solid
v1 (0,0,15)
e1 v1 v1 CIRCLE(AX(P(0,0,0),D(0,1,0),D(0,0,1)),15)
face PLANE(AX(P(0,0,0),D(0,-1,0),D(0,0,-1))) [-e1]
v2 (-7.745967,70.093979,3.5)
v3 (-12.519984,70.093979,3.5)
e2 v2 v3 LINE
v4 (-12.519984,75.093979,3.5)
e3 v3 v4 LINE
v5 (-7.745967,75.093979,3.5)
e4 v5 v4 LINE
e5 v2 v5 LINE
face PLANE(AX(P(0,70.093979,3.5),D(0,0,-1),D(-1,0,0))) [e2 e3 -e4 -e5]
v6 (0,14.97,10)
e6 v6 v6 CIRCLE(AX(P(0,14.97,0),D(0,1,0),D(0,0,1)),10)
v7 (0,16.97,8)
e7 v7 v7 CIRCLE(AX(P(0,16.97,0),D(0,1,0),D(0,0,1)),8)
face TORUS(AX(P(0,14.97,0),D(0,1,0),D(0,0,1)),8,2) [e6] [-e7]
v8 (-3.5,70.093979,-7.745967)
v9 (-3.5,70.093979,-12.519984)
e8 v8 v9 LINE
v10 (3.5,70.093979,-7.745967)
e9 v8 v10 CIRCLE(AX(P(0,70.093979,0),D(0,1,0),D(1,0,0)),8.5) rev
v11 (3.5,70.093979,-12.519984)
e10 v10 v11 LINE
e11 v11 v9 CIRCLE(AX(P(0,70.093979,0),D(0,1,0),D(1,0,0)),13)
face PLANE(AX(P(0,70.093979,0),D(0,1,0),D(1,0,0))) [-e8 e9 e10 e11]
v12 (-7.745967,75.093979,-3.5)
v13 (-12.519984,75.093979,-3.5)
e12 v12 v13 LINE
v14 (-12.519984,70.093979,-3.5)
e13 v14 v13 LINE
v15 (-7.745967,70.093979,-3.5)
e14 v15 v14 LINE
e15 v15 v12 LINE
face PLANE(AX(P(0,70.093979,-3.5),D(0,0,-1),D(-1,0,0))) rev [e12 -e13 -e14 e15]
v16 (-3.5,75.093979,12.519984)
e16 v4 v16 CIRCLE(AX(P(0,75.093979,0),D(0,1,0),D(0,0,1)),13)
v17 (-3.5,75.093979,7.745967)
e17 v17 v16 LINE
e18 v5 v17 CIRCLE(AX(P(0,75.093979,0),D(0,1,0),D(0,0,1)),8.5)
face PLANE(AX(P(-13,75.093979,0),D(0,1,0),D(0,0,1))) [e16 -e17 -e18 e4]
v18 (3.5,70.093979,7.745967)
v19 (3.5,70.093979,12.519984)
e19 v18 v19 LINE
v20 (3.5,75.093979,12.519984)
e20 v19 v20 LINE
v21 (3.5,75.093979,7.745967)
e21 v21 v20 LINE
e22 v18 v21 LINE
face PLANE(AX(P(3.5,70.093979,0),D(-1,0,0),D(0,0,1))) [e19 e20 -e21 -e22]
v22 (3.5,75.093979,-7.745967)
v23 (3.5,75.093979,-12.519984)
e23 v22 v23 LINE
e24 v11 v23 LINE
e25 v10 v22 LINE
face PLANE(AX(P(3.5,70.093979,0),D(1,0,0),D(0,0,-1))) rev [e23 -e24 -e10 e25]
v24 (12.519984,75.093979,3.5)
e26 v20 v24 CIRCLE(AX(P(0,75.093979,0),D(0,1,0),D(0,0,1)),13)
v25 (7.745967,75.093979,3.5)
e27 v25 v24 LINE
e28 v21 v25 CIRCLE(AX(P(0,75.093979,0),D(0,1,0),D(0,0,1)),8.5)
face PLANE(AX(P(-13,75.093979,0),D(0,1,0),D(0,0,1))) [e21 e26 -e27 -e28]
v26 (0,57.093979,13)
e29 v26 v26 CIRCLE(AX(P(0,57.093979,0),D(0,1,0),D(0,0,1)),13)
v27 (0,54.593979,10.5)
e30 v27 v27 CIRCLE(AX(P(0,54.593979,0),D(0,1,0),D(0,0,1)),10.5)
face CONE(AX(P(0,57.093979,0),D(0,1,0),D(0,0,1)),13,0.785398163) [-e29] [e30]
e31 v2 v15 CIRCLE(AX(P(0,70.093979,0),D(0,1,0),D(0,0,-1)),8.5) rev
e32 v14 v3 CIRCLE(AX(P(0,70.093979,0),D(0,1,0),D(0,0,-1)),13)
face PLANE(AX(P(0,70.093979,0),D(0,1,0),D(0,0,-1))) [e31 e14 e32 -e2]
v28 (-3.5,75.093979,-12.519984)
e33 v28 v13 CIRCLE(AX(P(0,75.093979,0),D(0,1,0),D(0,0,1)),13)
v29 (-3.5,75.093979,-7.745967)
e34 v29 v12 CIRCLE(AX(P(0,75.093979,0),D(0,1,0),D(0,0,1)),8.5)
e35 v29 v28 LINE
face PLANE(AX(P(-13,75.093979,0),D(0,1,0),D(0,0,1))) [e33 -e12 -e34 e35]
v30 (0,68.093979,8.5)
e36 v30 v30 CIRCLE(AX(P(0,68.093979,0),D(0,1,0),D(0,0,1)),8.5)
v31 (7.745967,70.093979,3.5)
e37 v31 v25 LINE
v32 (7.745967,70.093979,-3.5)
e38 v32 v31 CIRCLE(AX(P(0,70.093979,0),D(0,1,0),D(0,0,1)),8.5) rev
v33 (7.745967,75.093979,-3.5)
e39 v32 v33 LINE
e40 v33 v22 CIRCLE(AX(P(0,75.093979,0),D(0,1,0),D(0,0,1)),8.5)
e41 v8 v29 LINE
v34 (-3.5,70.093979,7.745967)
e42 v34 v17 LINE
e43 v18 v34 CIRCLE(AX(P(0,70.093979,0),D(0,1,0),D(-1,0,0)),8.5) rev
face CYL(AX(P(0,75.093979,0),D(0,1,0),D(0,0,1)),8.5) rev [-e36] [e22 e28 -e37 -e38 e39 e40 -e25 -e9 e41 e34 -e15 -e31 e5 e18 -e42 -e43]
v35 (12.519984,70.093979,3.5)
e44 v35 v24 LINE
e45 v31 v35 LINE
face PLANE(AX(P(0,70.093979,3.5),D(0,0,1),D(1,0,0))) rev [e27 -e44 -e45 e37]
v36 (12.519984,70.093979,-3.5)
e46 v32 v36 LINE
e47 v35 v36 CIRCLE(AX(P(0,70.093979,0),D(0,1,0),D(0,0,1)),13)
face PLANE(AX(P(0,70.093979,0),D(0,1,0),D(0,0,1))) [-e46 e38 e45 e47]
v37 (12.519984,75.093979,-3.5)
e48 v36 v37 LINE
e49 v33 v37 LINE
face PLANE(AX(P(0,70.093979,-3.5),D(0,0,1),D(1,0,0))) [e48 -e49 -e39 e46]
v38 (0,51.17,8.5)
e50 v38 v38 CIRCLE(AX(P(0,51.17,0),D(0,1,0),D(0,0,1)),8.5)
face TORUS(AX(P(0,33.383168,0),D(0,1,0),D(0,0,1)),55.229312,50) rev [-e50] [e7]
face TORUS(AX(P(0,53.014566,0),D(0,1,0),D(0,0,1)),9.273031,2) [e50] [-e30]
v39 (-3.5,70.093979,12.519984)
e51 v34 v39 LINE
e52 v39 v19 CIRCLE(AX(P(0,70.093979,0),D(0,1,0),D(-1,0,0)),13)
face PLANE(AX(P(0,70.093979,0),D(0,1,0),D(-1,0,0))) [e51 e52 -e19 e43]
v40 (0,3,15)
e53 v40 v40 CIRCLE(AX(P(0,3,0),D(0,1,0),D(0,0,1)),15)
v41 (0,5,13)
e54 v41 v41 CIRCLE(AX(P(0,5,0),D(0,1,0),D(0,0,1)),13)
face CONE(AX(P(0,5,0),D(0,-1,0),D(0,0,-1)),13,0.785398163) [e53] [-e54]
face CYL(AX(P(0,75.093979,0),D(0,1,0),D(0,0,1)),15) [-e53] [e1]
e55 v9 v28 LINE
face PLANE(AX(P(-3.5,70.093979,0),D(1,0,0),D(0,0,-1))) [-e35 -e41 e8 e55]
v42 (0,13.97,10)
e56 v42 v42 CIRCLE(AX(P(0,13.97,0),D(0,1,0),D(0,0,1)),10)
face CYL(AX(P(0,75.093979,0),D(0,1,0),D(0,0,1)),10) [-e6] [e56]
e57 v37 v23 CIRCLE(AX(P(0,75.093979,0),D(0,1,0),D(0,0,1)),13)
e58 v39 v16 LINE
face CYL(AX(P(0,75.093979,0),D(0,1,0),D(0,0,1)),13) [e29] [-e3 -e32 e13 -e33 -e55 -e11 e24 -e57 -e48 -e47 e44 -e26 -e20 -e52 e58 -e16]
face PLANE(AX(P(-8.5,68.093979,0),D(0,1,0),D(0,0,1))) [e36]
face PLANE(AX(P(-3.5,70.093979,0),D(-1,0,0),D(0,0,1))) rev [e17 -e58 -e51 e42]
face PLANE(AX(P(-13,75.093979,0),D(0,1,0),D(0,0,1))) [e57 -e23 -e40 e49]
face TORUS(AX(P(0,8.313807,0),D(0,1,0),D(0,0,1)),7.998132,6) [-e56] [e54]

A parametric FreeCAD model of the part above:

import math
import FreeCAD as App
import Part
import Sketcher
Q = App.Units.Quantity

doc = App.newDocument("Part")
body = doc.addObject("PartDesign::Body", "Body")

# Sketch on XY plane
sketch1 = body.newObject("Sketcher::SketchObject", "Sketch")
sketch1.AttachmentSupport = (doc.getObject("XY_Plane"), [""])
sketch1.MapMode = "FlatFace"
sketch1.addGeometry(Part.LineSegment(App.Vector(-15, 0, 0), App.Vector(0, 0, 0)), False)
sketch1.addGeometry(Part.LineSegment(App.Vector(0, 0, 0), App.Vector(0, 68.1, 0)), False)
sketch1.addGeometry(Part.LineSegment(App.Vector(0, 68.1, 0), App.Vector(-8.5, 68.1, 0)), False)
sketch1.addGeometry(Part.LineSegment(App.Vector(-8.5, 68.1, 0), App.Vector(-8.5, 75.1, 0)), False)
sketch1.addGeometry(Part.LineSegment(App.Vector(-8.5, 75.1, 0), App.Vector(-13, 75.1, 0)), False)
sketch1.addGeometry(Part.LineSegment(App.Vector(-13, 75.1, 0), App.Vector(-13, 57.1, 0)), False)
sketch1.addGeometry(Part.LineSegment(App.Vector(-13, 57.1, 0), App.Vector(-10.5, 54.6, 0)), False)
sketch1.addGeometry(Part.ArcOfCircle(Part.Circle(App.Vector(-9.3, 53, 0), App.Vector(0, 0, 1), 2), math.radians(128), math.radians(293)), False)
sketch1.addGeometry(Part.ArcOfCircle(Part.Circle(App.Vector(-55.2, 33.4, 0), App.Vector(0, 0, 1), 50), math.radians(-19), math.radians(21)), False)
sketch1.addGeometry(Part.ArcOfCircle(Part.Circle(App.Vector(-8, 15, 0), App.Vector(0, 0, 1), 2), math.radians(90), math.radians(180)), False)
sketch1.addGeometry(Part.LineSegment(App.Vector(-10, 15, 0), App.Vector(-10, 14, 0)), False)
sketch1.addGeometry(Part.ArcOfCircle(Part.Circle(App.Vector(-8, 8.3, 0), App.Vector(0, 0, 1), 6), math.radians(109), math.radians(214)), False)
sketch1.addGeometry(Part.LineSegment(App.Vector(-13, 5, 0), App.Vector(-15, 3, 0)), False)
sketch1.addGeometry(Part.LineSegment(App.Vector(-15, 3, 0), App.Vector(-15, 0, 0)), False)
sketch1.addConstraint(Sketcher.Constraint("Coincident", 0, 2, 1, 1))
sketch1.addConstraint(Sketcher.Constraint("Coincident", 1, 2, 2, 1))
sketch1.addConstraint(Sketcher.Constraint("Coincident", 2, 2, 3, 1))
sketch1.addConstraint(Sketcher.Constraint("Coincident", 3, 2, 4, 1))
sketch1.addConstraint(Sketcher.Constraint("Coincident", 4, 2, 5, 1))
sketch1.addConstraint(Sketcher.Constraint("Coincident", 5, 2, 6, 1))
sketch1.addConstraint(Sketcher.Constraint("Coincident", 6, 2, 7, 1))
sketch1.addConstraint(Sketcher.Constraint("Coincident", 7, 2, 8, 2))
sketch1.addConstraint(Sketcher.Constraint("Coincident", 8, 1, 9, 1))
sketch1.addConstraint(Sketcher.Constraint("Tangent", 9, 2, 10, 1))
sketch1.addConstraint(Sketcher.Constraint("Coincident", 10, 2, 11, 1))
sketch1.addConstraint(Sketcher.Constraint("Coincident", 11, 2, 12, 1))
sketch1.addConstraint(Sketcher.Constraint("Coincident", 12, 2, 13, 1))
sketch1.addConstraint(Sketcher.Constraint("Coincident", 13, 2, 0, 1))
sketch1.addConstraint(Sketcher.Constraint("Horizontal", 0))
sketch1.addConstraint(Sketcher.Constraint("Vertical", 1))
sketch1.addConstraint(Sketcher.Constraint("Horizontal", 2))
sketch1.addConstraint(Sketcher.Constraint("Vertical", 3))
sketch1.addConstraint(Sketcher.Constraint("Horizontal", 4))
sketch1.addConstraint(Sketcher.Constraint("Vertical", 5))
sketch1.addConstraint(Sketcher.Constraint("Vertical", 10))
sketch1.addConstraint(Sketcher.Constraint("Vertical", 13))
sketch1.addConstraint(Sketcher.Constraint("Coincident", 0, 2, -1, 1))
sketch1.addConstraint(Sketcher.Constraint("Equal", 7, 9))
sketch1.addConstraint(Sketcher.Constraint("Perpendicular", 6, 12))
sketch1.addConstraint(Sketcher.Constraint("Vertical", 3, 2, 7, 2))
sketch1.addConstraint(Sketcher.Constraint("Vertical", 9, 3, 8, 1))
sketch1.addConstraint(Sketcher.Constraint("Vertical", 5, 2, 11, 2))
sketch1.addConstraint(Sketcher.Constraint("Radius", 7, 2.0))
sketch1.addConstraint(Sketcher.Constraint("Radius", 8, 50.0))
sketch1.addConstraint(Sketcher.Constraint("Radius", 11, 6.0))
sketch1.addConstraint(Sketcher.Constraint("DistanceX", 0, 1, 0, 2, 15.0))
sketch1.addConstraint(Sketcher.Constraint("DistanceY", 3, 1, 3, 2, 7.0))
sketch1.addConstraint(Sketcher.Constraint("DistanceY", 5, 2, 5, 1, 18.0))
sketch1.addConstraint(Sketcher.Constraint("DistanceY", 10, 2, 10, 1, 1.0))
sketch1.addConstraint(Sketcher.Constraint("DistanceY", 13, 2, 13, 1, 3.0))
sketch1.addConstraint(Sketcher.Constraint("Angle", 6, Q("-45 deg")))
sketch1.addConstraint(Sketcher.Constraint("DistanceX", 2, 2, 2, 1, 8.5))
sketch1.addConstraint(Sketcher.Constraint("DistanceX", 4, 2, 4, 1, 4.5))
sketch1.addConstraint(Sketcher.Constraint("DistanceX", 9, 3, -1, 1, 8.0))
sketch1.addConstraint(Sketcher.Constraint("DistanceX", 6, 2, 2, 2, 2.0))
sketch1.addConstraint(Sketcher.Constraint("DistanceY", 8, 1, 7, 2, 34.2))
sketch1.addConstraint(Sketcher.Constraint("DistanceY", -1, 1, 9, 3, 14.97))
sketch1.addConstraint(Sketcher.Constraint("DistanceY", 1, 1, 1, 2, 68.093979))
revolution = body.newObject("PartDesign::Revolution", "Revolution")
revolution.Profile = sketch1
revolution.ReferenceAxis = (sketch1, ["V_Axis"])
revolution.Angle = 360

# Sketch on XZ plane
sketch2 = body.newObject("Sketcher::SketchObject", "Sketch001")
sketch2.AttachmentSupport = (doc.getObject("XZ_Plane"), [""])
sketch2.MapMode = "FlatFace"
sketch2.AttachmentOffset = App.Placement(App.Vector(0, 0, -75.093979), App.Rotation())
sketch2.addGeometry(Part.ArcOfCircle(Part.Circle(App.Vector(0, 0, 0), App.Vector(0, 0, 1), 8.5), math.radians(0), math.radians(24)), False)
sketch2.addGeometry(Part.LineSegment(App.Vector(7.7, 3.5, 0), App.Vector(12.5, 3.5, 0)), False)
sketch2.addGeometry(Part.ArcOfCircle(Part.Circle(App.Vector(0, 0, 0), App.Vector(0, 0, 1), 13), math.radians(0), math.radians(15.62)), False)
sketch2.addGeometry(Part.ArcOfCircle(Part.Circle(App.Vector(0, 0, 0), App.Vector(0, 0, 1), 13), math.radians(-15.62), math.radians(0)), False)
sketch2.addGeometry(Part.LineSegment(App.Vector(12.5, -3.5, 0), App.Vector(7.7, -3.5, 0)), False)
sketch2.addGeometry(Part.ArcOfCircle(Part.Circle(App.Vector(0, 0, 0), App.Vector(0, 0, 1), 8.5), math.radians(-24), math.radians(0)), False)
sketch2.addConstraint(Sketcher.Constraint("Coincident", 0, 2, 1, 1))
sketch2.addConstraint(Sketcher.Constraint("Coincident", 1, 2, 2, 2))
sketch2.addConstraint(Sketcher.Constraint("Tangent", 2, 1, 3, 2))
sketch2.addConstraint(Sketcher.Constraint("Coincident", 3, 1, 4, 1))
sketch2.addConstraint(Sketcher.Constraint("Coincident", 4, 2, 5, 1))
sketch2.addConstraint(Sketcher.Constraint("Tangent", 5, 2, 0, 1))
sketch2.addConstraint(Sketcher.Constraint("Horizontal", 1))
sketch2.addConstraint(Sketcher.Constraint("Horizontal", 4))
sketch2.addConstraint(Sketcher.Constraint("Coincident", 0, 3, -1, 1))
sketch2.addConstraint(Sketcher.Constraint("Coincident", 2, 3, -1, 1))
sketch2.addConstraint(Sketcher.Constraint("Equal", 2, 3))
sketch2.addConstraint(Sketcher.Constraint("Equal", 0, 5))
sketch2.addConstraint(Sketcher.Constraint("PointOnObject", 2, 1, -1))
sketch2.addConstraint(Sketcher.Constraint("PointOnObject", 5, 2, -1))
sketch2.addConstraint(Sketcher.Constraint("Vertical", 1, 2, 3, 1))
sketch2.addConstraint(Sketcher.Constraint("Radius", 2, 13.0))
sketch2.addConstraint(Sketcher.Constraint("Radius", 0, 8.5))
sketch2.addConstraint(Sketcher.Constraint("DistanceY", 3, 1, 1, 2, 7.0))
pocket1 = body.newObject("PartDesign::Pocket", "Pocket")
pocket1.Profile = sketch2
pocket1.Length = 5
pocket1.Reversed = True
doc.recompute()

polarpattern = body.newObject("PartDesign::PolarPattern", "PolarPattern")
polarpattern.Originals = [pocket1]
polarpattern.Axis = (doc.getObject("Y_Axis"), [""])
polarpattern.Angle = 360
polarpattern.Occurrences = 4
body.Tip = polarpattern

doc.recompute()
